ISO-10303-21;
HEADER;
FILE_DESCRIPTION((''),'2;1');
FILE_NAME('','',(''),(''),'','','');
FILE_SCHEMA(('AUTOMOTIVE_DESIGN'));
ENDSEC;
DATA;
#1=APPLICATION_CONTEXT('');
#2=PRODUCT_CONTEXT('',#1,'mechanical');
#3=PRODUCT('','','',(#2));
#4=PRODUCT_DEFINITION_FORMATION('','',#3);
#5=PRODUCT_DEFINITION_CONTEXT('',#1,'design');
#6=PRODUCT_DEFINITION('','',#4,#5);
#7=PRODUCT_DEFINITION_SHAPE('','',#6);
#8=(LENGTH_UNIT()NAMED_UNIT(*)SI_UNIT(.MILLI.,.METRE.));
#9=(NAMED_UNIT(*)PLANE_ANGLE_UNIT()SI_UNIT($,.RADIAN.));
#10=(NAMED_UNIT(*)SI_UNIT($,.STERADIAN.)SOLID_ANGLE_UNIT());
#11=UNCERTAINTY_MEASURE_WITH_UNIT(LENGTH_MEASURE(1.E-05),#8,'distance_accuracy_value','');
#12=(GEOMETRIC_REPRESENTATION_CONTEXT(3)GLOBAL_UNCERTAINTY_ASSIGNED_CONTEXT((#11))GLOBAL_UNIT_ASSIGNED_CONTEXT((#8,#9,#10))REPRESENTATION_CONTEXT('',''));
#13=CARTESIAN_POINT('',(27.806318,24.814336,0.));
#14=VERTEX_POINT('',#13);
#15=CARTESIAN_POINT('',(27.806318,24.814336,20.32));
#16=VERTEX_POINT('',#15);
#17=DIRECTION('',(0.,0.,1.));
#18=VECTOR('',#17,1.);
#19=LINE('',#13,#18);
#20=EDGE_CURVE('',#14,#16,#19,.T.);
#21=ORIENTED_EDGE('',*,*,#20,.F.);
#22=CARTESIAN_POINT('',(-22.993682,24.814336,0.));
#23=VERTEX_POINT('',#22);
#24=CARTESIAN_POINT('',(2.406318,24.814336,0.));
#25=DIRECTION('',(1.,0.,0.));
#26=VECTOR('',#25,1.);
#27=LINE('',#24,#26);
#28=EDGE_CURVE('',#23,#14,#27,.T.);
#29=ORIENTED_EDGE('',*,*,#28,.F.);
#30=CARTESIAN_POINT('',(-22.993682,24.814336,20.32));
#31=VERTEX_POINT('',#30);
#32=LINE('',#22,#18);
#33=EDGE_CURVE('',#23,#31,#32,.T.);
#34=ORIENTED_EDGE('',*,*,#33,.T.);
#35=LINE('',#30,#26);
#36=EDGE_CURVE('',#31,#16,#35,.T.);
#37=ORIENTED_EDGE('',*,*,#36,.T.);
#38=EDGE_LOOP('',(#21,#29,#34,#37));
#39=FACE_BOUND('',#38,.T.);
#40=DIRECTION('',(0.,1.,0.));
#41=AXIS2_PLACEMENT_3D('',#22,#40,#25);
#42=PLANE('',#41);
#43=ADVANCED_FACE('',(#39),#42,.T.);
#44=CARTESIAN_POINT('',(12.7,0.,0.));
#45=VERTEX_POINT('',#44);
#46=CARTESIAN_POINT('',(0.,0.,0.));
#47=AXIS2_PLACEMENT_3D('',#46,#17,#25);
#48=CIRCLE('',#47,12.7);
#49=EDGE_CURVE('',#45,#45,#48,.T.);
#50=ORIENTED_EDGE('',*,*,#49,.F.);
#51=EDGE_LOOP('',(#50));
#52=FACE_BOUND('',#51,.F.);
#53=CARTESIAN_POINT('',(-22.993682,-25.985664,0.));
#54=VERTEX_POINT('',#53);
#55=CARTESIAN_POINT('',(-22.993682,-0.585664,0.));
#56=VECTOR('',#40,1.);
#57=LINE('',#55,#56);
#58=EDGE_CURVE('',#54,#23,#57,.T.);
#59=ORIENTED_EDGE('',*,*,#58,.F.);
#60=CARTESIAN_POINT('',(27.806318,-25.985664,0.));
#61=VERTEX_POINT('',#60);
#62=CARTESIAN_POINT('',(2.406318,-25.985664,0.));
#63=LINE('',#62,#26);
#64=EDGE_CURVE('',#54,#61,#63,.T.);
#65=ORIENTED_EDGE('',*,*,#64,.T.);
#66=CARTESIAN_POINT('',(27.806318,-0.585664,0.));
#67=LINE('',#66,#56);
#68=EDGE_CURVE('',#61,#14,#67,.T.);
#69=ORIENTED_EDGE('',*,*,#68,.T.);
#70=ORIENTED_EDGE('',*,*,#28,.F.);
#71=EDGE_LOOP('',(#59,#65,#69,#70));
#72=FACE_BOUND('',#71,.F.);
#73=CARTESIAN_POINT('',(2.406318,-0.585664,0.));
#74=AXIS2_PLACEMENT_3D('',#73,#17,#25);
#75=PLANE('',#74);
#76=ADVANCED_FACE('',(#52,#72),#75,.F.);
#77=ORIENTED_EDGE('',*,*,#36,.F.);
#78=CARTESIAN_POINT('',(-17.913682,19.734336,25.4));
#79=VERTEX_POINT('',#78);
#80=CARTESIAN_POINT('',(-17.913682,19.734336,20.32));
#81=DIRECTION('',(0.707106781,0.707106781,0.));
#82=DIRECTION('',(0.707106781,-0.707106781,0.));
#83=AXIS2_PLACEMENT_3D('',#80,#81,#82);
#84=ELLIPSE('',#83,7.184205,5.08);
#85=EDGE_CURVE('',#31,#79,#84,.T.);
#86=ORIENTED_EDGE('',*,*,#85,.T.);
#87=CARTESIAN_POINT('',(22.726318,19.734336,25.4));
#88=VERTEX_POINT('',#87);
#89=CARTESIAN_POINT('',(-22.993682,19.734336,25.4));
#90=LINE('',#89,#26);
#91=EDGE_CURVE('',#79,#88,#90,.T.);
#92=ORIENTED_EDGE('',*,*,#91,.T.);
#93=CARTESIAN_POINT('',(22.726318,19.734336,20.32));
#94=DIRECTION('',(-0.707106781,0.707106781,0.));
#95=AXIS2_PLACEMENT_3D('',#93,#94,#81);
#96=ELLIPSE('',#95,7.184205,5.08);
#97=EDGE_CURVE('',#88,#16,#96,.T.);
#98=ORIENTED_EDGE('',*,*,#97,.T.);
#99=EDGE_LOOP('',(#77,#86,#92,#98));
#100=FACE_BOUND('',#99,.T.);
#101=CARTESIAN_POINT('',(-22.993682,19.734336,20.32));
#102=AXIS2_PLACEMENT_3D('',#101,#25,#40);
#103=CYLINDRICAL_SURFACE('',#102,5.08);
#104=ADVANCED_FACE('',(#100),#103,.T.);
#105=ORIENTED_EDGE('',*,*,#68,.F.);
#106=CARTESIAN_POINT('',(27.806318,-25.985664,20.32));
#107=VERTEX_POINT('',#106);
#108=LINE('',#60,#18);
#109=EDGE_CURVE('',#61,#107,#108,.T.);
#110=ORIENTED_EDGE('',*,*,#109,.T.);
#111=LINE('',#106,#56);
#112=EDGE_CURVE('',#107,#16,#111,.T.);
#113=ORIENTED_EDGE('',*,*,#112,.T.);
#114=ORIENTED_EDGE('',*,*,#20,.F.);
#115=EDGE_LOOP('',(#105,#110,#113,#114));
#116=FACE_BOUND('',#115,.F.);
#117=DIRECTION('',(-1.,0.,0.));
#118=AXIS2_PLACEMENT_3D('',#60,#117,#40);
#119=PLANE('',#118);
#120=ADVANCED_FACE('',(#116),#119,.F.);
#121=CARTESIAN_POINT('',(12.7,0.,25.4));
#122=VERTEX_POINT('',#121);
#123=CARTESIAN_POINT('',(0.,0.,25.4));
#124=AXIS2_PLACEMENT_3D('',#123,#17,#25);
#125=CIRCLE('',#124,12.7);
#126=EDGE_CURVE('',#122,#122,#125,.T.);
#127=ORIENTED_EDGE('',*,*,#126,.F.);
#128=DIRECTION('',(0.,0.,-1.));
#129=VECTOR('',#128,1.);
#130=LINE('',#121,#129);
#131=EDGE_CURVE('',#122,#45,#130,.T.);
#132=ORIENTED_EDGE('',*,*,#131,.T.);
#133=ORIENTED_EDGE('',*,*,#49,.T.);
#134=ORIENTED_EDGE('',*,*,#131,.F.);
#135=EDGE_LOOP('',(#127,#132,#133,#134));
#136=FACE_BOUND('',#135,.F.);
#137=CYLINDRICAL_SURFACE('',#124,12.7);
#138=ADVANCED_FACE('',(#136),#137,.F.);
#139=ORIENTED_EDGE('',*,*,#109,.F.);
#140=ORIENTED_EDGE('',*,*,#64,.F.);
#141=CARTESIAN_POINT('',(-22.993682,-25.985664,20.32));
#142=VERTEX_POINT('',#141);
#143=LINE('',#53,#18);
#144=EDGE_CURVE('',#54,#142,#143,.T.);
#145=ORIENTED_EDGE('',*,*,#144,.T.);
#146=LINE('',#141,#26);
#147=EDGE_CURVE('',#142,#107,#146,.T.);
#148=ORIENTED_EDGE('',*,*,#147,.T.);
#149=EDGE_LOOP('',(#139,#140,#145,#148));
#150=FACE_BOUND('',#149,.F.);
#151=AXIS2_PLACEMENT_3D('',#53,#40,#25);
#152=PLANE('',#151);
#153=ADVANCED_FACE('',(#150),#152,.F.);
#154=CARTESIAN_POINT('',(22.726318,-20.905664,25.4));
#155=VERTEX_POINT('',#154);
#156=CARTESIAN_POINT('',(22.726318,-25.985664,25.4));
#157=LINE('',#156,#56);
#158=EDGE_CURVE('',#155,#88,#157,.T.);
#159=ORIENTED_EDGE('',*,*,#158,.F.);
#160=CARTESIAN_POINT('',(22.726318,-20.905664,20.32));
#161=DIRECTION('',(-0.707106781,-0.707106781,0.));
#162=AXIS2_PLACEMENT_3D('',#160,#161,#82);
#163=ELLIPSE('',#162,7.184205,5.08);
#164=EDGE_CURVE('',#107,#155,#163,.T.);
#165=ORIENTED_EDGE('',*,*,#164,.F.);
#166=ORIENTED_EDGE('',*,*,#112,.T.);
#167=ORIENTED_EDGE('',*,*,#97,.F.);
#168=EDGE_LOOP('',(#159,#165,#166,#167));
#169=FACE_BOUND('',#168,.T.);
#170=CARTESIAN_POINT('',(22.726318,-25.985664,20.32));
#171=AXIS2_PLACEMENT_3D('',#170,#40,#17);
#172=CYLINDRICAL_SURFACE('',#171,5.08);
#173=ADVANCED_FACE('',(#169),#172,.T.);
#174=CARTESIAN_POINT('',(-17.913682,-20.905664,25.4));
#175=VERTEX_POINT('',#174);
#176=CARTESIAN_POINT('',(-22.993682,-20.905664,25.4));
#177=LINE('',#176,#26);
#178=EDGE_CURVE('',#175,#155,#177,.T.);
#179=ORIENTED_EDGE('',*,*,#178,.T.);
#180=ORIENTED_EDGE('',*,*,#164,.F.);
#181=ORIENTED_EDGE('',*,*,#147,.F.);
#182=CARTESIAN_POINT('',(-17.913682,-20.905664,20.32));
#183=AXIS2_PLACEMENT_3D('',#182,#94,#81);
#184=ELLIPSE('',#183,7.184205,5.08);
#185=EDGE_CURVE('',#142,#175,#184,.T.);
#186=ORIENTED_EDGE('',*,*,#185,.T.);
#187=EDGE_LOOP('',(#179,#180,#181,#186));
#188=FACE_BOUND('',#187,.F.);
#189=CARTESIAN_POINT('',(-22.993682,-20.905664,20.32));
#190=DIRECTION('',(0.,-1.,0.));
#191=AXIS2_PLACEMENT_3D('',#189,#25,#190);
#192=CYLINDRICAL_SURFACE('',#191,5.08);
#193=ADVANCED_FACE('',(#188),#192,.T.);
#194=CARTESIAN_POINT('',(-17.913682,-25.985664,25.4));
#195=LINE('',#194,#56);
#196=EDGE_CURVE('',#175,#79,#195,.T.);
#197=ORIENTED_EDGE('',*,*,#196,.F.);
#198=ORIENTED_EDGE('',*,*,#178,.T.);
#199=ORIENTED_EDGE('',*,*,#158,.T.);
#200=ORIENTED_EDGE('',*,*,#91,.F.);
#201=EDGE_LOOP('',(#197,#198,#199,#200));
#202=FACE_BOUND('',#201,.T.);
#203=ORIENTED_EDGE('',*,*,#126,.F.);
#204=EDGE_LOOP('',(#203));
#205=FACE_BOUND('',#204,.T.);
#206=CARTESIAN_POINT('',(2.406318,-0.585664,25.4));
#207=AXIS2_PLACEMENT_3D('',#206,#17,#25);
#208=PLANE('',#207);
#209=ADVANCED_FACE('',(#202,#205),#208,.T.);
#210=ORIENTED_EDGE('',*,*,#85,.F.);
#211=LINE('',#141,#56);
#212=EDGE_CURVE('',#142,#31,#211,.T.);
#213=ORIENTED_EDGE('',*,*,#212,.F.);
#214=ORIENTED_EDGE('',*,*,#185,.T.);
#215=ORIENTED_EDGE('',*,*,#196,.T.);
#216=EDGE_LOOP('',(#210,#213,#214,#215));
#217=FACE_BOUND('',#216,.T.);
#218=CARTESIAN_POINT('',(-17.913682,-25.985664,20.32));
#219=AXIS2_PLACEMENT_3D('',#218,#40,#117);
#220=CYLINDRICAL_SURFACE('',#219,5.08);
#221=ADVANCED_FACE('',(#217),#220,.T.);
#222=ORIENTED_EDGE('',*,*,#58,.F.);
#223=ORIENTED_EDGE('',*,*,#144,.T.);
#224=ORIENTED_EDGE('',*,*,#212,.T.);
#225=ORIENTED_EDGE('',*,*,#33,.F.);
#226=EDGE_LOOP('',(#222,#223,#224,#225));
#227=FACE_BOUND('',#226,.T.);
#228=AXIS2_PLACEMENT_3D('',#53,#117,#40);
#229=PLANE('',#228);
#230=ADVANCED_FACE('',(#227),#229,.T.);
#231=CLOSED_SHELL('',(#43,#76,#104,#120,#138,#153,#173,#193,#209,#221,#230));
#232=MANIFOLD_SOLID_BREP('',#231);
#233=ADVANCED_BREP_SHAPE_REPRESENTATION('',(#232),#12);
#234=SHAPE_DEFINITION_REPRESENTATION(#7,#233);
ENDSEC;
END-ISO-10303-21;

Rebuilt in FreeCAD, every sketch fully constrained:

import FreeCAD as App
import Part
import Sketcher
from FreeCAD import Vector
Q = App.Units.Quantity


def edges_at(feature, points):
    """Names of the edges that pass closest to the given points."""
    edges = feature.Shape.Edges
    near = lambda p: min(range(len(edges)), key=lambda i: edges[i].distToShape(Part.Vertex(*p))[0])
    return sorted({f"Edge{near(p) + 1}" for p in points})


def add_polygon(sketch, points):
    """Adds a closed chain of lines whose ends are joined by coincident constraints."""
    first, n = sketch.GeometryCount, len(points)
    for a, b in zip(points, points[1:] + points[:1]):
        sketch.addGeometry(Part.LineSegment(App.Vector(*a, 0), App.Vector(*b, 0)), False)
    for i in range(n):
        sketch.addConstraint(Sketcher.Constraint("Coincident", first + i, 2, first + (i + 1) % n, 1))

doc = App.newDocument("Part")
body = doc.addObject("PartDesign::Body", "Body")

# Sketch on XY plane
sketch1 = body.newObject("Sketcher::SketchObject", "Sketch")
sketch1.AttachmentSupport = (doc.getObject("XY_Plane"), [""])
sketch1.MapMode = "FlatFace"
add_polygon(sketch1, [(-22.993682, 24.814336), (-22.993682, -25.985664), (27.806318, -25.985664), (27.806318, 24.814336)])  # lines 0-3
sketch1.addConstraint([
    Sketcher.Constraint("Vertical", 0),
    Sketcher.Constraint("Horizontal", 1),
    Sketcher.Constraint("Vertical", 2),
    Sketcher.Constraint("Horizontal", 3),
    Sketcher.Constraint("Equal", 3, 0),
    Sketcher.Constraint("DistanceX", 1, 1, 1, 2, Q("2 in")),
    Sketcher.Constraint("DistanceX", 0, 2, -1, 1, Q("22.993682 mm")),
    Sketcher.Constraint("DistanceY", 0, 2, -1, 1, Q("25.985664 mm")),
])
pad1 = body.newObject("PartDesign::Pad", "Pad")
pad1.Profile = sketch1
pad1.Length = Q("1 in")

# Sketch on XY plane
sketch2 = body.newObject("Sketcher::SketchObject", "Sketch001")
sketch2.AttachmentSupport = (doc.getObject("XY_Plane"), [""])
sketch2.MapMode = "FlatFace"
sketch2.AttachmentOffset = App.Placement(Vector(0, 0, 1 * 25.4), App.Rotation())
sketch2.addGeometry(Part.Circle(Vector(0, 0, 0), Vector(0, 0, 1), 12.7), False)
sketch2.addConstraint([
    Sketcher.Constraint("Coincident", 0, 3, -1, 1),
    Sketcher.Constraint("Diameter", 0, Q("1 in")),
])
pocket1 = body.newObject("PartDesign::Pocket", "Pocket")
pocket1.Profile = sketch2
pocket1.Length = Q("1 in")
doc.recompute()

fillet = body.newObject("PartDesign::Fillet", "Fillet")
fillet.Base = (pocket1, edges_at(pocket1, [
    (2.406, -25.986, 25.4),
    (27.806, -0.586, 25.4),
    (2.406, 24.814, 25.4),
    (-22.994, -0.586, 25.4),
]))
fillet.Radius = Q("0.2 in")

doc.recompute()
